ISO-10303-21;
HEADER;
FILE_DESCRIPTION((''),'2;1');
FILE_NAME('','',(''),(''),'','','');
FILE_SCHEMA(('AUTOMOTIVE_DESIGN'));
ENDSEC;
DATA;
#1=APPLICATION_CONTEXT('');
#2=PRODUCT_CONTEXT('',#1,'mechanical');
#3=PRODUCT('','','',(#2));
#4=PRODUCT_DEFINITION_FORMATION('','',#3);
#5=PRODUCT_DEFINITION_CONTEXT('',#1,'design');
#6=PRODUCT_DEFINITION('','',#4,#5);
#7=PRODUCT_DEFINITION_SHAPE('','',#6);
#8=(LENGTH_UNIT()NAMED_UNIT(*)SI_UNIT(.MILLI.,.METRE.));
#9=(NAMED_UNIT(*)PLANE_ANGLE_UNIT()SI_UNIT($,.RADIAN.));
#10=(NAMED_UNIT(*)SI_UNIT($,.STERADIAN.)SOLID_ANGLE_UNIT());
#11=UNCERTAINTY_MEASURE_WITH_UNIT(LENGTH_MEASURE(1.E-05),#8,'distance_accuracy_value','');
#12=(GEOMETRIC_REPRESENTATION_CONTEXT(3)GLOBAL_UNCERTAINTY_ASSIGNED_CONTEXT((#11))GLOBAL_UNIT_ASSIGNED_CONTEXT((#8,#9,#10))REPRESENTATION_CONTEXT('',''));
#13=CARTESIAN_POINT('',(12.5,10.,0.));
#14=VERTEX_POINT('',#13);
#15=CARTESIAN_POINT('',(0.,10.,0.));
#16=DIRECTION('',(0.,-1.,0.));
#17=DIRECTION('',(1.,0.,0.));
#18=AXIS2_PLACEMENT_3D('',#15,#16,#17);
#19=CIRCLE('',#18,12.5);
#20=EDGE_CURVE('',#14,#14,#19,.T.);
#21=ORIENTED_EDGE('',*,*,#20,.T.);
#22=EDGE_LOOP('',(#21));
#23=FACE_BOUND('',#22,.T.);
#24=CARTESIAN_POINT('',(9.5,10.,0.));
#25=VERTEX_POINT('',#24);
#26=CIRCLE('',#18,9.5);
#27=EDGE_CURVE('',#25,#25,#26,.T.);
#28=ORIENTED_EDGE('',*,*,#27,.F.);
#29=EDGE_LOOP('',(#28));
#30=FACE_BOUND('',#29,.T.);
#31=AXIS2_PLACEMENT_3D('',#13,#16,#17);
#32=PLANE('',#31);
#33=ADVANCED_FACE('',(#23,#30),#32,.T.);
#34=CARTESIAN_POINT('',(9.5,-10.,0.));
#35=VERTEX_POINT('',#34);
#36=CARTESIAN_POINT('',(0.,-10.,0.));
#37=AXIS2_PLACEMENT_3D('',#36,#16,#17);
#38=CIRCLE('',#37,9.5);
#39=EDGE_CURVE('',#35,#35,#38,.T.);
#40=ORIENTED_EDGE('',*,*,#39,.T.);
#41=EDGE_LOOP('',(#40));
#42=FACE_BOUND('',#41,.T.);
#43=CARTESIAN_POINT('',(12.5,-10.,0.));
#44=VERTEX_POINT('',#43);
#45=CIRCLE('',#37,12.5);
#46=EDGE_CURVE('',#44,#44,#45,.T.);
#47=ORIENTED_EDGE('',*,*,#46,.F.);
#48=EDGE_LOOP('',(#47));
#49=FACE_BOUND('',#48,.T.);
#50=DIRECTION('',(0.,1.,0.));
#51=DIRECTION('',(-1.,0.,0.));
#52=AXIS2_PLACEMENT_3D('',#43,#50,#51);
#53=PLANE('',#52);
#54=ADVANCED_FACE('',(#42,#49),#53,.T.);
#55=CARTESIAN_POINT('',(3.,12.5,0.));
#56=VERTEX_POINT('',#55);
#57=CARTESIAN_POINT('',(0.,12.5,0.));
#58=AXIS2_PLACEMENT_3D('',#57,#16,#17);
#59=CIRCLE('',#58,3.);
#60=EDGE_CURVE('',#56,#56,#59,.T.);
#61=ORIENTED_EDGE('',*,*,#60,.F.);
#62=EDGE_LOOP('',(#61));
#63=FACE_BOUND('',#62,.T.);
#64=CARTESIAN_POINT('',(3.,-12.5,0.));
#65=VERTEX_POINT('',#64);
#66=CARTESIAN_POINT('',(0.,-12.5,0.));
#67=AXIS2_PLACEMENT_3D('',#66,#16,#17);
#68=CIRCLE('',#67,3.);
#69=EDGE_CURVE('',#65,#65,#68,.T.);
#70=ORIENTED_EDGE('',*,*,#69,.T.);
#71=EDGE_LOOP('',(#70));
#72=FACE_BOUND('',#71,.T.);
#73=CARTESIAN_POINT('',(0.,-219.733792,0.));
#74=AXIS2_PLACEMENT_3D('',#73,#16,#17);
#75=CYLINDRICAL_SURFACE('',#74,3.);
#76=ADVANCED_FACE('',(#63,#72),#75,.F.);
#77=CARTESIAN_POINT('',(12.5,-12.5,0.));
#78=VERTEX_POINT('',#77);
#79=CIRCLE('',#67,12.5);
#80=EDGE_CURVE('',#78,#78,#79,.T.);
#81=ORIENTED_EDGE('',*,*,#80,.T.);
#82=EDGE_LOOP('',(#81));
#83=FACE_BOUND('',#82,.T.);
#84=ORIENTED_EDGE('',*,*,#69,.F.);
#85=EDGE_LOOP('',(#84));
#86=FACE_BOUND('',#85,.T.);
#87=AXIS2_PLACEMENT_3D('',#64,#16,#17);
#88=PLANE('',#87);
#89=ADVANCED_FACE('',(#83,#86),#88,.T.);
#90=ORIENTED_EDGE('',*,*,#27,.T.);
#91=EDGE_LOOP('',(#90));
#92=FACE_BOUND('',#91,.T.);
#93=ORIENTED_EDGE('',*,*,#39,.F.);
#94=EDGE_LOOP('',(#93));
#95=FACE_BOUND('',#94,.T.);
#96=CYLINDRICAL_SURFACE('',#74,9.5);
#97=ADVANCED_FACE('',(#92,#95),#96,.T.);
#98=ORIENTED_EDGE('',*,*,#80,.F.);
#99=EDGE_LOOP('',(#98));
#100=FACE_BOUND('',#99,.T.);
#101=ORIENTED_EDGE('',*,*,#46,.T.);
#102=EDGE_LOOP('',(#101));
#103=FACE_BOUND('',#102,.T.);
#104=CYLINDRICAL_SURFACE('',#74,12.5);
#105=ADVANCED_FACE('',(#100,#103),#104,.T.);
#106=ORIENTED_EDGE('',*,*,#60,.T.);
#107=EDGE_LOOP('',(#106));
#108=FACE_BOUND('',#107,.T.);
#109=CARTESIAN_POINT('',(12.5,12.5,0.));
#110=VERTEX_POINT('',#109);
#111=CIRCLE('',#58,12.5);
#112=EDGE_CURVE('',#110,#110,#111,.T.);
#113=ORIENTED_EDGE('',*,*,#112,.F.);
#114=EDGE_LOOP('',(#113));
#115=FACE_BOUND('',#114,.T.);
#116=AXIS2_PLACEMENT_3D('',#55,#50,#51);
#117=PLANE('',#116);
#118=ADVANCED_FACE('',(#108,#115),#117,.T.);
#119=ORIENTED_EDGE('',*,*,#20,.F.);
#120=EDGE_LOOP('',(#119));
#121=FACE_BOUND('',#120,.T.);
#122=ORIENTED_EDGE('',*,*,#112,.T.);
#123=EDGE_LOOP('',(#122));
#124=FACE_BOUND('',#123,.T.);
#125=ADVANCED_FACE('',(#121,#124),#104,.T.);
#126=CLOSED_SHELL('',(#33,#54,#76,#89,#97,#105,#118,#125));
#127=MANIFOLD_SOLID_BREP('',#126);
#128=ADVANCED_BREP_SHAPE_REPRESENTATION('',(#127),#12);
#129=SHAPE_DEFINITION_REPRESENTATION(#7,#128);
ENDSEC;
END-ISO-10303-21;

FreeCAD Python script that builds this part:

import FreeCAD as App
import Part
import Sketcher

V = App.Vector
Q = App.Units.Quantity


def add_polygon(sketch, points):
    """Adds a closed chain of lines whose ends are joined by coincident constraints."""
    first, n = sketch.GeometryCount, len(points)
    for a, b in zip(points, points[1:] + points[:1]):
        sketch.addGeometry(Part.LineSegment(App.Vector(*a, 0), App.Vector(*b, 0)), False)
    for i in range(n):
        sketch.addConstraint(Sketcher.Constraint("Coincident", first + i, 2, first + (i + 1) % n, 1))

doc = App.newDocument("Part")
body = doc.addObject("PartDesign::Body", "Body")

sketch1 = body.newObject("Sketcher::SketchObject", "Sketch")
sketch1.AttachmentSupport = (doc.getObject("XY_Plane"), [""])
sketch1.MapMode = "FlatFace"
add_polygon(sketch1, [(3, 12.5), (3, -12.5), (12.5, -12.5), (12.5, -10), (9.5, -10), (9.5, 10), (12.5, 10), (12.5, 12.5)])
sketch1.addConstraint([
    Sketcher.Constraint("Vertical", 0),
    Sketcher.Constraint("Horizontal", 1),
    Sketcher.Constraint("Vertical", 2),
    Sketcher.Constraint("Horizontal", 3),
    Sketcher.Constraint("Vertical", 4),
    Sketcher.Constraint("Horizontal", 5),
    Sketcher.Constraint("Vertical", 6),
    Sketcher.Constraint("Horizontal", 7),
    Sketcher.Constraint("Symmetric", 2, 2, 5, 2, -1),
    Sketcher.Constraint("Equal", 2, 6),
    Sketcher.Constraint("DistanceX", 3, 2, 3, 1, Q("3 mm")),
    Sketcher.Constraint("DistanceY", 0, 2, 0, 1, Q("25 mm")),
    Sketcher.Constraint("DistanceY", 4, 1, 4, 2, Q("20 mm")),
    Sketcher.Constraint("DistanceX", 1, 1, 1, 2, Q("9.5 mm")),
    Sketcher.Constraint("DistanceX", -1, 1, 0, 2, Q("3 mm")),
])
revolution = body.newObject("PartDesign::Revolution", "Revolution")
revolution.Profile = sketch1
revolution.ReferenceAxis = (sketch1, ["V_Axis"])
revolution.Angle = 360

doc.recompute()
